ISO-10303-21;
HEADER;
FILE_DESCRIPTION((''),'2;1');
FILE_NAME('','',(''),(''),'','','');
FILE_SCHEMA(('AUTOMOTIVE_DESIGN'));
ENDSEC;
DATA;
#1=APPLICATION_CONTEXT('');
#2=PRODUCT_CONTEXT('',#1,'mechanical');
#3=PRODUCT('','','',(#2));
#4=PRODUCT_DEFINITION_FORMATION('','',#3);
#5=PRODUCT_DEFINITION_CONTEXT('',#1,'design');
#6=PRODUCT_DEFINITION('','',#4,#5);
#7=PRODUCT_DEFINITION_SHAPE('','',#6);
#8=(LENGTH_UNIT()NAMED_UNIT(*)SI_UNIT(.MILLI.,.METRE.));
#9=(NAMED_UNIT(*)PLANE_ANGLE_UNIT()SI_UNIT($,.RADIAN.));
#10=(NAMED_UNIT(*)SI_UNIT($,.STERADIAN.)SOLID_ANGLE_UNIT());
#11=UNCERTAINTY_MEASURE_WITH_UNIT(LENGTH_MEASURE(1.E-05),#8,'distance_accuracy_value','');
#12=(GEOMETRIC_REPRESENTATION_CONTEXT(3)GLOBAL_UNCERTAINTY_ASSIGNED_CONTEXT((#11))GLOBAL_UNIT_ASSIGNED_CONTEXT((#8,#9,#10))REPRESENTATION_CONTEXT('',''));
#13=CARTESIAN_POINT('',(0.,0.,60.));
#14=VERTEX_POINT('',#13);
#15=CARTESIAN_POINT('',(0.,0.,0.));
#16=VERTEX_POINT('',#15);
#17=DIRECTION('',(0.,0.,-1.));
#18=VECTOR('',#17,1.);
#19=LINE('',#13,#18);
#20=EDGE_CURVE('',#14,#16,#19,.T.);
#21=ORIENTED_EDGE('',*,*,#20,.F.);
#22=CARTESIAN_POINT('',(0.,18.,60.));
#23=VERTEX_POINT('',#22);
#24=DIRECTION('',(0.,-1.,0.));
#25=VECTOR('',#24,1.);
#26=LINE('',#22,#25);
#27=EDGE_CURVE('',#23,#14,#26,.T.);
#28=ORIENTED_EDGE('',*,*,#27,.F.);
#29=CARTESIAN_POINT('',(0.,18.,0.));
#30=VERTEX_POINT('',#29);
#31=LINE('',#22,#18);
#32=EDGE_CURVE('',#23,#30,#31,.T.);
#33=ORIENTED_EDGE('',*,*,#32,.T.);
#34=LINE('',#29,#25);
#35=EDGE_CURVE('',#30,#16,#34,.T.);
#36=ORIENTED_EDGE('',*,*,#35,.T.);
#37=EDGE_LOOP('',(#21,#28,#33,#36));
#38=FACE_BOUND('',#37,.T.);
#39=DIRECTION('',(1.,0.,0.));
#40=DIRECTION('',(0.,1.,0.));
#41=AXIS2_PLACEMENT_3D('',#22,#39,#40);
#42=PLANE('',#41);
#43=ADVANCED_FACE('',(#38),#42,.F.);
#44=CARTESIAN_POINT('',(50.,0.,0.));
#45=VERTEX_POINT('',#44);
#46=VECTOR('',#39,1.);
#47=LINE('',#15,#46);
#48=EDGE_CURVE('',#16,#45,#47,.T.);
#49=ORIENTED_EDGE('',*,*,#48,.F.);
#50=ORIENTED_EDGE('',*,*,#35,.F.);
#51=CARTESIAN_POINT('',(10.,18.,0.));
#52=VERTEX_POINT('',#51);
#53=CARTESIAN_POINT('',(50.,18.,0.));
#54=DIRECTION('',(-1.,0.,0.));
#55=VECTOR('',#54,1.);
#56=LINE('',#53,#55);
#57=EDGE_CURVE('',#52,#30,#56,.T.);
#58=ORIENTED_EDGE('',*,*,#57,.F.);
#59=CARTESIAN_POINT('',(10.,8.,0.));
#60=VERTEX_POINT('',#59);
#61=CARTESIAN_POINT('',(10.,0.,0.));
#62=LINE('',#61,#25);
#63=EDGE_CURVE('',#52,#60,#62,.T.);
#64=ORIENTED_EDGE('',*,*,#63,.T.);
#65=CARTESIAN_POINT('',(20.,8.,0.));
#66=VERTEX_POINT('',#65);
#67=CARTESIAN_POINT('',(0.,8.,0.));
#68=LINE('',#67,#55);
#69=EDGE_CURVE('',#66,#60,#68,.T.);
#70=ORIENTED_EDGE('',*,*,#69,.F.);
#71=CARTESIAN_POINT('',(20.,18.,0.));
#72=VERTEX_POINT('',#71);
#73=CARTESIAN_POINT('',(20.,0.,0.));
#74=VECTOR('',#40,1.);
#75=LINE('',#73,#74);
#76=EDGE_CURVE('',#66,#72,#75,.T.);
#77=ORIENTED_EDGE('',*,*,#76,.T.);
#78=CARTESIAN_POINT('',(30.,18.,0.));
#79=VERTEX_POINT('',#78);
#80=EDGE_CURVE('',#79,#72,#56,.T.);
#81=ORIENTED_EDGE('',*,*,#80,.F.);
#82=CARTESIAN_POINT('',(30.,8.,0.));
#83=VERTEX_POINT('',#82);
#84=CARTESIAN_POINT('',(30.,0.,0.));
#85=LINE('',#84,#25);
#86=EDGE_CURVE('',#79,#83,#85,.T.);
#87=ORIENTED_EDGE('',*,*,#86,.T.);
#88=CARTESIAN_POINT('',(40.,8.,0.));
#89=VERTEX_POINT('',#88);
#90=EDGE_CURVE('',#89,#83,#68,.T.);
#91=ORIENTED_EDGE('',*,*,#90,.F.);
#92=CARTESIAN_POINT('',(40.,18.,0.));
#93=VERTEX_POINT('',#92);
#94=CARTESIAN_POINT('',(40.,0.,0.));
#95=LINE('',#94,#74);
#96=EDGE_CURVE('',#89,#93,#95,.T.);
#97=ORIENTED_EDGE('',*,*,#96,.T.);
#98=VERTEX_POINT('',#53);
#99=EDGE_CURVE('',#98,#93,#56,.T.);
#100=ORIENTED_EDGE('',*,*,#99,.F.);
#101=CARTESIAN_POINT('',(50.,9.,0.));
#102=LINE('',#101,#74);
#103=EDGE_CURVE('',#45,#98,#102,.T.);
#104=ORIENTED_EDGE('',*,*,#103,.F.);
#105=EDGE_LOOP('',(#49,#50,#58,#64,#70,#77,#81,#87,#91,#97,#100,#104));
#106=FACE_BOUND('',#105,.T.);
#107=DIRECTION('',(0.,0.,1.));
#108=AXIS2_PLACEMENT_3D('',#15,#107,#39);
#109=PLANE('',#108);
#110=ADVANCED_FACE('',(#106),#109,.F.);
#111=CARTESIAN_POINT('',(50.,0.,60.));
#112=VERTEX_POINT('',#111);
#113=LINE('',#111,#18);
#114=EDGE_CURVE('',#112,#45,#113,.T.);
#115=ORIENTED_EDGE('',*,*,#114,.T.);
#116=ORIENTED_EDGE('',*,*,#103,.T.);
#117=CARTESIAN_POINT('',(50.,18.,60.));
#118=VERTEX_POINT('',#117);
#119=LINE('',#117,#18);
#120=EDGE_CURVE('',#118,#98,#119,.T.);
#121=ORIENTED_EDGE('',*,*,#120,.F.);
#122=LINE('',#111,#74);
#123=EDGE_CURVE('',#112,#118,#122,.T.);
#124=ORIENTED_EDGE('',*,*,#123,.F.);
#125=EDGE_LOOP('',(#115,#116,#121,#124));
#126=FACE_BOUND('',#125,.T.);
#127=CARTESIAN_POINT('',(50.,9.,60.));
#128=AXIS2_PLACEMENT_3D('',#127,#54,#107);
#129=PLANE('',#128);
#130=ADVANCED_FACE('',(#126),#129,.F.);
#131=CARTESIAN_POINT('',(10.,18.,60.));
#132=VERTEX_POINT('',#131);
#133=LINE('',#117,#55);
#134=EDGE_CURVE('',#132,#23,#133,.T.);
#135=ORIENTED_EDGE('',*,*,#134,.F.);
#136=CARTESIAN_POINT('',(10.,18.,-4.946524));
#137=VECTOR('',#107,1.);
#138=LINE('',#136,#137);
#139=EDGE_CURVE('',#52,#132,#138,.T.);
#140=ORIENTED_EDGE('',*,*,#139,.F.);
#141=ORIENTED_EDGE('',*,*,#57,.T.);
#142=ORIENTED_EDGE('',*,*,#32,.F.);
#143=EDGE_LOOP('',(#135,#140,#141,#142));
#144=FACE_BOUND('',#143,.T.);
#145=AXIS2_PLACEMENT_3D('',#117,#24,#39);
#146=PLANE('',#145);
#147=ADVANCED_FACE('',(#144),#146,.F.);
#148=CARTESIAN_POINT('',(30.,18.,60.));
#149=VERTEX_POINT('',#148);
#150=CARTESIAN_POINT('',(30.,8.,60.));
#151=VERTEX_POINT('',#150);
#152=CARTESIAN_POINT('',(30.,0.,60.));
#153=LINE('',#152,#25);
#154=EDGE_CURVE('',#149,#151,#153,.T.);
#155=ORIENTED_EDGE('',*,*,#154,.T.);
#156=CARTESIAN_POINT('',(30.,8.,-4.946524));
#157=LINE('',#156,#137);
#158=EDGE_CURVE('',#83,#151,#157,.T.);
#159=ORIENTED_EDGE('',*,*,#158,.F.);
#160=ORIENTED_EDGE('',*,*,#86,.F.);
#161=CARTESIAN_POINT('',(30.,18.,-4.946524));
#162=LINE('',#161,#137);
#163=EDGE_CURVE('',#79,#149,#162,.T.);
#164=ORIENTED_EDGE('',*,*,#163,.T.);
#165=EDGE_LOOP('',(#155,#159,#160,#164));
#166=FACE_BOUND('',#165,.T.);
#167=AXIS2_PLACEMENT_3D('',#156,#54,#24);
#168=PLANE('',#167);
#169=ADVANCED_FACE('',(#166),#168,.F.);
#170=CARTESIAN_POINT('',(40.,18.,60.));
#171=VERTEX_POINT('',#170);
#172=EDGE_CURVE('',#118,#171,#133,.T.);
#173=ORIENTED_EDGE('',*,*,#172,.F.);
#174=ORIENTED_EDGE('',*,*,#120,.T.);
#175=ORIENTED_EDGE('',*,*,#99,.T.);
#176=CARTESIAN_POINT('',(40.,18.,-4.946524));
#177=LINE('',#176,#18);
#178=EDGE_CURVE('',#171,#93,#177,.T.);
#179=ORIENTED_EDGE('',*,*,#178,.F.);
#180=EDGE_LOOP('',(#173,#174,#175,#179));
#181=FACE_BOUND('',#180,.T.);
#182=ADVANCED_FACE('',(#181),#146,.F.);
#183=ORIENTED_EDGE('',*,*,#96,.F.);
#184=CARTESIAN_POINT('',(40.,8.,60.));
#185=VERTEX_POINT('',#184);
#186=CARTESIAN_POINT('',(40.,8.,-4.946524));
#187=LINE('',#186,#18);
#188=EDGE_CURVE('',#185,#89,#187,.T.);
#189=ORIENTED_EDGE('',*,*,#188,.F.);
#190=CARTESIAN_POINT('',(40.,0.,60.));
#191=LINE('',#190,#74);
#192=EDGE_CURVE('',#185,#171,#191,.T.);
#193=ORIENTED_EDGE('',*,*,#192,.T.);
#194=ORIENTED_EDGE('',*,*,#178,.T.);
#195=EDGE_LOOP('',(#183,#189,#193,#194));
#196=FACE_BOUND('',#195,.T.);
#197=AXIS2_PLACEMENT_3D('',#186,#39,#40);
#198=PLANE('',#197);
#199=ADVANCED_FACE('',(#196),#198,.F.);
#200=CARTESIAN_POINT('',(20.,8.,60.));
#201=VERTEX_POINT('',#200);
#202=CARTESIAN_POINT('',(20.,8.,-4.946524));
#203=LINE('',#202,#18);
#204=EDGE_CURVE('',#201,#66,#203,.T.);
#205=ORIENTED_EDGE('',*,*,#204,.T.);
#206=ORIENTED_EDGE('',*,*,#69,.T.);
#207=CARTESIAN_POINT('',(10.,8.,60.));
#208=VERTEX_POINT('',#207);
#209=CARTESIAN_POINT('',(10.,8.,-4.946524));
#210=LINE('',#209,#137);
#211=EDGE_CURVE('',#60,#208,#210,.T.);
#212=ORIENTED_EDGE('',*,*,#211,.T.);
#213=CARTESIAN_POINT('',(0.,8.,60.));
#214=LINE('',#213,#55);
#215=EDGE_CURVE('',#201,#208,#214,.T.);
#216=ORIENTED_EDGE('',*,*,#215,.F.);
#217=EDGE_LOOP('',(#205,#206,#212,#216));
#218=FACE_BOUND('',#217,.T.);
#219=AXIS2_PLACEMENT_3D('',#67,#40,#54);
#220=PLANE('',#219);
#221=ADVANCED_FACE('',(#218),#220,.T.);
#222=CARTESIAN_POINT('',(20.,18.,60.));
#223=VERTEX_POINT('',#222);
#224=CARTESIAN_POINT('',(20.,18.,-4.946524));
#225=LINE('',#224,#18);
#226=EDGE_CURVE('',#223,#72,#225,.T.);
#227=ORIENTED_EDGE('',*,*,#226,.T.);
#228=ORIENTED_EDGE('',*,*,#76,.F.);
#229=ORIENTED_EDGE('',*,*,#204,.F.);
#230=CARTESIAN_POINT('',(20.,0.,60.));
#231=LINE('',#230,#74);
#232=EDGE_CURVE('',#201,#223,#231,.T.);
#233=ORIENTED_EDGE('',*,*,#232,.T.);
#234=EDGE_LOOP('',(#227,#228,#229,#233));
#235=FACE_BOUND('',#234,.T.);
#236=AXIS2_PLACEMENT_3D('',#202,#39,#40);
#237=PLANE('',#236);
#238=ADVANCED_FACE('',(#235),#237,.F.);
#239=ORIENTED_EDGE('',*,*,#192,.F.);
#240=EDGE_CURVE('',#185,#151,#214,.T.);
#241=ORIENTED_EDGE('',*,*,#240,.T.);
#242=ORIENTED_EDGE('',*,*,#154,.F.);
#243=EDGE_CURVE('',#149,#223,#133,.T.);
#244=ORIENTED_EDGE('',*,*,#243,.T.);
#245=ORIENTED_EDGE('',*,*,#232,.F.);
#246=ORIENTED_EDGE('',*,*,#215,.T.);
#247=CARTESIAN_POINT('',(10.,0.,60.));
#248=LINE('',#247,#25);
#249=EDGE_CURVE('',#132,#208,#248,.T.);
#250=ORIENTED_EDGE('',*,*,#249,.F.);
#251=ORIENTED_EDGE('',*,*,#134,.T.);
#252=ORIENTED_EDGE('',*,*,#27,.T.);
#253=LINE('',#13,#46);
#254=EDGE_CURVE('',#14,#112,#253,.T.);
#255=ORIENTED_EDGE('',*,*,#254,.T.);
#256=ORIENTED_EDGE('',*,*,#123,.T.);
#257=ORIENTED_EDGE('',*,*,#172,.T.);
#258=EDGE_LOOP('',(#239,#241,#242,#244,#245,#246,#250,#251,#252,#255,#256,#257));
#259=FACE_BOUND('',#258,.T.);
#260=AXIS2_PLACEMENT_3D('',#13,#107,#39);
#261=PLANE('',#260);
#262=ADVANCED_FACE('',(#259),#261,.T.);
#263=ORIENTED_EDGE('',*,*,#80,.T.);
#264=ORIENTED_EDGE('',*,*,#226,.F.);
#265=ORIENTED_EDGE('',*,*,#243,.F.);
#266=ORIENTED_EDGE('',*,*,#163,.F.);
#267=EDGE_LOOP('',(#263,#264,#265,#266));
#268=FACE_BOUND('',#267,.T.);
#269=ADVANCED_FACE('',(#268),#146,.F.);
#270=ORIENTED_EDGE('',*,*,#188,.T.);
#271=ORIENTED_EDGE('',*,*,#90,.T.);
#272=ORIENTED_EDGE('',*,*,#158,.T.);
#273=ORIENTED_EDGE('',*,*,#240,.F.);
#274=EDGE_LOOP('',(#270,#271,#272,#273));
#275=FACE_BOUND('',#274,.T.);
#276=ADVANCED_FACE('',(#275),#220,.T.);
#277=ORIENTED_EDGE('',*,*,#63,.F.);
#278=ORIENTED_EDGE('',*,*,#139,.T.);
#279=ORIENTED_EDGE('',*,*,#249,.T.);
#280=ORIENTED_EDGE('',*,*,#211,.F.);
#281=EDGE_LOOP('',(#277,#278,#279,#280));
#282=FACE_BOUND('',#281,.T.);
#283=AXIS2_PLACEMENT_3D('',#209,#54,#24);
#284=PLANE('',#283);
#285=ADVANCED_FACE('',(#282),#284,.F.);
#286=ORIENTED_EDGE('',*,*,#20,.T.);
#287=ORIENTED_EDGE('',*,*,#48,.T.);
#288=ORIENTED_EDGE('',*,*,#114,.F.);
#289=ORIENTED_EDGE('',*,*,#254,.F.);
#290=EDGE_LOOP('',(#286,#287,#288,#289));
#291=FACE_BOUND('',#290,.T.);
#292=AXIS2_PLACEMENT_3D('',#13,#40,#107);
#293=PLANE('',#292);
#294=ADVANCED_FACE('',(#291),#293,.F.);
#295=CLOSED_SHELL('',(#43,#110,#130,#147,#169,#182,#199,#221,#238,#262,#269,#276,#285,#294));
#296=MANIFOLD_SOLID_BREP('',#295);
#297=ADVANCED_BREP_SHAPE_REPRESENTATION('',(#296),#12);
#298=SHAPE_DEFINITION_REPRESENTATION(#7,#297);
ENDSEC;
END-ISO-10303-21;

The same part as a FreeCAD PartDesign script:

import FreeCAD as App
import Part
import Sketcher
Q = App.Units.Quantity

doc = App.newDocument("Part")
body = doc.addObject("PartDesign::Body", "Body")

sketch1 = body.newObject("Sketcher::SketchObject", "Sketch")
sketch1.AttachmentSupport = (doc.getObject("XY_Plane"), [""])
sketch1.MapMode = "FlatFace"
sketch1.addGeometry([
    Part.LineSegment(App.Vector(0, 0, 0), App.Vector(50, 0, 0)),
    Part.LineSegment(App.Vector(50, 0, 0), App.Vector(50, 18, 0)),
    Part.LineSegment(App.Vector(50, 18, 0), App.Vector(0, 18, 0)),
    Part.LineSegment(App.Vector(0, 18, 0), App.Vector(0, 0, 0)),
], False)
sketch1.addConstraint([
    Sketcher.Constraint("Coincident", 0, 2, 1, 1),
    Sketcher.Constraint("Coincident", 1, 2, 2, 1),
    Sketcher.Constraint("Coincident", 2, 2, 3, 1),
    Sketcher.Constraint("Coincident", 3, 2, 0, 1),
    Sketcher.Constraint("Horizontal", 0),
    Sketcher.Constraint("Vertical", 1),
    Sketcher.Constraint("Horizontal", 2),
    Sketcher.Constraint("Vertical", 3),
    Sketcher.Constraint("Coincident", 3, 2, -1, 1),
    Sketcher.Constraint("DistanceX", 0, 1, 0, 2, Q("50 mm")),
    Sketcher.Constraint("DistanceY", 1, 1, 1, 2, Q("18 mm")),
])
pad1 = body.newObject("PartDesign::Pad", "Pad")
pad1.Profile = sketch1
pad1.Length = 60

sketch2 = body.newObject("Sketcher::SketchObject", "Sketch001")
sketch2.AttachmentSupport = (doc.getObject("XZ_Plane"), [""])
sketch2.MapMode = "FlatFace"
sketch2.AttachmentOffset = App.Placement(App.Vector(0, 0, -18), App.Rotation())
sketch2.addGeometry([
    Part.LineSegment(App.Vector(10, -4.946524, 0), App.Vector(10, 65.296865, 0)),
    Part.LineSegment(App.Vector(10, 65.296865, 0), App.Vector(20, 65.296865, 0)),
    Part.LineSegment(App.Vector(20, 65.296865, 0), App.Vector(20, -4.946524, 0)),
    Part.LineSegment(App.Vector(20, -4.946524, 0), App.Vector(10, -4.946524, 0)),
    Part.LineSegment(App.Vector(30, -4.946524, 0), App.Vector(30, 65.296865, 0)),
    Part.LineSegment(App.Vector(30, 65.296865, 0), App.Vector(40, 65.296865, 0)),
    Part.LineSegment(App.Vector(40, 65.296865, 0), App.Vector(40, -4.946524, 0)),
    Part.LineSegment(App.Vector(40, -4.946524, 0), App.Vector(30, -4.946524, 0)),
], False)
sketch2.addConstraint([
    Sketcher.Constraint("Coincident", 0, 2, 1, 1),
    Sketcher.Constraint("Coincident", 1, 2, 2, 1),
    Sketcher.Constraint("Coincident", 2, 2, 3, 1),
    Sketcher.Constraint("Coincident", 3, 2, 0, 1),
    Sketcher.Constraint("Coincident", 4, 2, 5, 1),
    Sketcher.Constraint("Coincident", 5, 2, 6, 1),
    Sketcher.Constraint("Coincident", 6, 2, 7, 1),
    Sketcher.Constraint("Coincident", 7, 2, 4, 1),
    Sketcher.Constraint("Vertical", 0),
    Sketcher.Constraint("Horizontal", 1),
    Sketcher.Constraint("Vertical", 2),
    Sketcher.Constraint("Horizontal", 3),
    Sketcher.Constraint("Vertical", 4),
    Sketcher.Constraint("Horizontal", 5),
    Sketcher.Constraint("Vertical", 6),
    Sketcher.Constraint("Horizontal", 7),
    Sketcher.Constraint("Horizontal", 1, 2, 4, 2),
    Sketcher.Constraint("Horizontal", 3, 2, 6, 2),
    Sketcher.Constraint("Equal", 3, 5),
    Sketcher.Constraint("DistanceX", 1, 1, 1, 2, Q("10 mm")),
    Sketcher.Constraint("DistanceX", -1, 1, 0, 2, Q("10 mm")),
    Sketcher.Constraint("DistanceX", -1, 1, 4, 2, Q("30 mm")),
    Sketcher.Constraint("DistanceY", 0, 1, 0, 2, Q("70.243389 mm")),
    Sketcher.Constraint("DistanceY", -1, 1, 0, 2, Q("65.296865 mm")),
])
pocket1 = body.newObject("PartDesign::Pocket", "Pocket")
pocket1.Profile = sketch2
pocket1.Length = 10
pocket1.Reversed = True

doc.recompute()
